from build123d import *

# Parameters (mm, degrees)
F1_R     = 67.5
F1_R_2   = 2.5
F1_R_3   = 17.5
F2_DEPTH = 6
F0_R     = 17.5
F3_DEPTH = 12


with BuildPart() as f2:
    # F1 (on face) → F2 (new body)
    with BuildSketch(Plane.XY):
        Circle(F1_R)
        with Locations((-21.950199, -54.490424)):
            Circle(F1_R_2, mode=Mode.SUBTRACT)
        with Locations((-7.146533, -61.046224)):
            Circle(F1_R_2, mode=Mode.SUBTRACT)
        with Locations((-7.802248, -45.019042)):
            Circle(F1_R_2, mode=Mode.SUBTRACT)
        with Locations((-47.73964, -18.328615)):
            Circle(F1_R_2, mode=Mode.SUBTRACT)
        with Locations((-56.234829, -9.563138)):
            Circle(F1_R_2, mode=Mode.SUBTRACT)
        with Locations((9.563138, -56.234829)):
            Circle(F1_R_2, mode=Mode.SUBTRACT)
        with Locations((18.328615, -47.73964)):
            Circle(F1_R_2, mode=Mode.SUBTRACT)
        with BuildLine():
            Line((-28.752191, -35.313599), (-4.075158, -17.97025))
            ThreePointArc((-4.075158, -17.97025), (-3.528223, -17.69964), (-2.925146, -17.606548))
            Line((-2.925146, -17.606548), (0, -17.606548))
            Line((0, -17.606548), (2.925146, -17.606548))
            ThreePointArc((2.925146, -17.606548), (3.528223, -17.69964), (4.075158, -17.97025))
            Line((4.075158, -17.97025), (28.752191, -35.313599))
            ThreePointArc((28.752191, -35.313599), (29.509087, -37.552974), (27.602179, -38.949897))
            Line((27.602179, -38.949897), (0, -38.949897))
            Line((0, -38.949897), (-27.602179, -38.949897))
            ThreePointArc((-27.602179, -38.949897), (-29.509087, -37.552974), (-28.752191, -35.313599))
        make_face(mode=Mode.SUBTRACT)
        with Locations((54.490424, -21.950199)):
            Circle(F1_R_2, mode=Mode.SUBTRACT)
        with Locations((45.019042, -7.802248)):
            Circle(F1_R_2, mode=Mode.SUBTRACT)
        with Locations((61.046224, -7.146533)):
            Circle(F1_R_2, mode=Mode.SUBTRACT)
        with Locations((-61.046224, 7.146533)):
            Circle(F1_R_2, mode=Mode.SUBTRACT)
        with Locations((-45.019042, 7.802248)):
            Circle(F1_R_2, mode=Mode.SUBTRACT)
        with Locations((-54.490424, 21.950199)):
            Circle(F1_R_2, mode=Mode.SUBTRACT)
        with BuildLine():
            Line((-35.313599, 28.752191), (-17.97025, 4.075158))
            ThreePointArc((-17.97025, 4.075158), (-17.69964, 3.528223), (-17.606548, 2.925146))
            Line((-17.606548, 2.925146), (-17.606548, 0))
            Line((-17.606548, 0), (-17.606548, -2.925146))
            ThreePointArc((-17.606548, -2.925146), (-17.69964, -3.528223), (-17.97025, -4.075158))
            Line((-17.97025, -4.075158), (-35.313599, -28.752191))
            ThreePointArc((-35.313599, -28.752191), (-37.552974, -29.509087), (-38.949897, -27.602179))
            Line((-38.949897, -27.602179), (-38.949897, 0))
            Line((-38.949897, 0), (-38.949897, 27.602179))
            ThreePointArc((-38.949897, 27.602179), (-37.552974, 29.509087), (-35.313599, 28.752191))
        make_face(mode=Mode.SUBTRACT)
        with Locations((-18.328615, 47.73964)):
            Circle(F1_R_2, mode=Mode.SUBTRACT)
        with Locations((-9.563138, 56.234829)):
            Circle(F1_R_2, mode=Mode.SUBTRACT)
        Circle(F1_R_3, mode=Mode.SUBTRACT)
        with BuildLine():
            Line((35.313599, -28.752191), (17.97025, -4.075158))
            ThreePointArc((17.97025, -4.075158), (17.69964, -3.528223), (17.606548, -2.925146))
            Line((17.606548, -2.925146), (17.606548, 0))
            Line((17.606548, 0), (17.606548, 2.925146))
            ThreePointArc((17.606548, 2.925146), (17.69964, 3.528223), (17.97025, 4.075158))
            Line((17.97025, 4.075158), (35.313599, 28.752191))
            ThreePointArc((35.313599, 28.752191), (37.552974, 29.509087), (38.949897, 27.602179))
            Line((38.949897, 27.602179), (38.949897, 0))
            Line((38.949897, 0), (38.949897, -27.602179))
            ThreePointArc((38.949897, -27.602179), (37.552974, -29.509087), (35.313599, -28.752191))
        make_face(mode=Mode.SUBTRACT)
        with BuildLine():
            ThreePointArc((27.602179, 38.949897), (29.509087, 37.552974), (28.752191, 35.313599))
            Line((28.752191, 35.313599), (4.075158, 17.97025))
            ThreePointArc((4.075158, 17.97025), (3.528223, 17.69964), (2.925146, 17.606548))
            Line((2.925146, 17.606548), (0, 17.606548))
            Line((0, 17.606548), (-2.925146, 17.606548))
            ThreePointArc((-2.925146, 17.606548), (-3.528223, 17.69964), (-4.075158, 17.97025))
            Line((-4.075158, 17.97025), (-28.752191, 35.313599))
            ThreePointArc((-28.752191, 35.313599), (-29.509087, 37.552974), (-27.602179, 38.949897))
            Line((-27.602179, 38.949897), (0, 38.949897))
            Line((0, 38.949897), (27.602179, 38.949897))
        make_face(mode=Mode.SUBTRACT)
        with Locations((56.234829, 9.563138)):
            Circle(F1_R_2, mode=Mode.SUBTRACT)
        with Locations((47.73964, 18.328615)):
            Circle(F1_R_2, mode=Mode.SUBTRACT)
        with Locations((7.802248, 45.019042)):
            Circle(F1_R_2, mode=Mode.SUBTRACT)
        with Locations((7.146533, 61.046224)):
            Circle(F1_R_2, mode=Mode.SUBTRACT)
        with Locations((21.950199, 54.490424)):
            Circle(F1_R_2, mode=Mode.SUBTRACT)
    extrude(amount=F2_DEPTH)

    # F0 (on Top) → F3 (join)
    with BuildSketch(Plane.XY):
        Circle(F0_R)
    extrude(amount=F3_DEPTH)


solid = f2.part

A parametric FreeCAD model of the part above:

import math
import FreeCAD as App
import Part
import Sketcher
Q = App.Units.Quantity

doc = App.newDocument("Part")
params = doc.addObject("Spreadsheet::Sheet", "Params")
for row, (alias, value) in enumerate([
    ("sketch1_diameter", "135 mm"),
    ("sketch1_diameter2", "5 mm"),
    ("sketch1_diameter3", "35 mm"),
    ("sketch1_radius", "2 mm"),
    ("pad1_length", "6 mm"),
    ("sketch2_diameter", "35 mm"),
    ("pad2_length", "12 mm"),
], start=1):
    params.set(f"A{row}", alias)
    params.set(f"B{row}", "=" + value)
    params.setAlias(f"B{row}", alias)

body = doc.addObject("PartDesign::Body", "Body")

sketch1 = doc.addObject("Sketcher::SketchObject", "Sketch")
body.addObject(sketch1)
sketch1.AttachmentSupport = (doc.XY_Plane, [""])
sketch1.MapMode = "FlatFace"
sketch1.addGeometry(Part.Circle(App.Vector(0, 0, 0), App.Vector(0, 0, 1), 67.5), False)
sketch1.addGeometry(Part.Circle(App.Vector(-22, -54.5, 0), App.Vector(0, 0, 1), 2.5), False)
sketch1.addGeometry(Part.Circle(App.Vector(-7.1, -61, 0), App.Vector(0, 0, 1), 2.5), False)
sketch1.addGeometry(Part.Circle(App.Vector(-7.8, -45, 0), App.Vector(0, 0, 1), 2.5), False)
sketch1.addGeometry(Part.Circle(App.Vector(-47.7, -18.3, 0), App.Vector(0, 0, 1), 2.5), False)
sketch1.addGeometry(Part.Circle(App.Vector(-56.2, -9.6, 0), App.Vector(0, 0, 1), 2.5), False)
sketch1.addGeometry(Part.ArcOfCircle(Part.Circle(App.Vector(-36.9, 27.6, 0), App.Vector(0, 0, 1), 2), math.radians(35), math.radians(180)), False)
sketch1.addGeometry(Part.LineSegment(App.Vector(-35.3, 28.8, 0), App.Vector(-18, 4.1, 0)), False)
sketch1.addGeometry(Part.ArcOfCircle(Part.Circle(App.Vector(-19.6, 2.9, 0), App.Vector(0, 0, 1), 2), math.radians(0), math.radians(35)), False)
sketch1.addGeometry(Part.LineSegment(App.Vector(-17.6, 2.9, 0), App.Vector(-17.6, -2.9, 0)), False)
sketch1.addGeometry(Part.ArcOfCircle(Part.Circle(App.Vector(-19.6, -2.9, 0), App.Vector(0, 0, 1), 2), math.radians(-35), math.radians(0)), False)
sketch1.addGeometry(Part.LineSegment(App.Vector(-18, -4.1, 0), App.Vector(-35.3, -28.8, 0)), False)
sketch1.addGeometry(Part.ArcOfCircle(Part.Circle(App.Vector(-36.9, -27.6, 0), App.Vector(0, 0, 1), 2), math.radians(180), math.radians(325)), False)
sketch1.addGeometry(Part.LineSegment(App.Vector(-38.9, -27.6, 0), App.Vector(-38.9, 27.6, 0)), False)
sketch1.addGeometry(Part.Circle(App.Vector(9.6, -56.2, 0), App.Vector(0, 0, 1), 2.5), False)
sketch1.addGeometry(Part.Circle(App.Vector(18.3, -47.7, 0), App.Vector(0, 0, 1), 2.5), False)
sketch1.addGeometry(Part.ArcOfCircle(Part.Circle(App.Vector(-27.6, -36.9, 0), App.Vector(0, 0, 1), 2), math.radians(125), math.radians(270)), False)
sketch1.addGeometry(Part.LineSegment(App.Vector(-28.8, -35.3, 0), App.Vector(-4.1, -18, 0)), False)
sketch1.addGeometry(Part.ArcOfCircle(Part.Circle(App.Vector(-2.9, -19.6, 0), App.Vector(0, 0, 1), 2), math.radians(90), math.radians(125)), False)
sketch1.addGeometry(Part.LineSegment(App.Vector(-2.9, -17.6, 0), App.Vector(2.9, -17.6, 0)), False)
sketch1.addGeometry(Part.ArcOfCircle(Part.Circle(App.Vector(2.9, -19.6, 0), App.Vector(0, 0, 1), 2), math.radians(55), math.radians(90)), False)
sketch1.addGeometry(Part.LineSegment(App.Vector(4.1, -18, 0), App.Vector(28.8, -35.3, 0)), False)
sketch1.addGeometry(Part.ArcOfCircle(Part.Circle(App.Vector(27.6, -36.9, 0), App.Vector(0, 0, 1), 2), math.radians(-90), math.radians(55)), False)
sketch1.addGeometry(Part.LineSegment(App.Vector(27.6, -38.9, 0), App.Vector(-27.6, -38.9, 0)), False)
sketch1.addGeometry(Part.Circle(App.Vector(0, 0, 0), App.Vector(0, 0, 1), 17.5), False)
sketch1.addGeometry(Part.Circle(App.Vector(54.5, -22, 0), App.Vector(0, 0, 1), 2.5), False)
sketch1.addGeometry(Part.Circle(App.Vector(45, -7.8, 0), App.Vector(0, 0, 1), 2.5), False)
sketch1.addGeometry(Part.Circle(App.Vector(61, -7.1, 0), App.Vector(0, 0, 1), 2.5), False)
sketch1.addGeometry(Part.Circle(App.Vector(-61, 7.1, 0), App.Vector(0, 0, 1), 2.5), False)
sketch1.addGeometry(Part.Circle(App.Vector(-45, 7.8, 0), App.Vector(0, 0, 1), 2.5), False)
sketch1.addGeometry(Part.Circle(App.Vector(-54.5, 22, 0), App.Vector(0, 0, 1), 2.5), False)
sketch1.addGeometry(Part.Circle(App.Vector(-18.3, 47.7, 0), App.Vector(0, 0, 1), 2.5), False)
sketch1.addGeometry(Part.Circle(App.Vector(-9.6, 56.2, 0), App.Vector(0, 0, 1), 2.5), False)
sketch1.addGeometry(Part.ArcOfCircle(Part.Circle(App.Vector(36.9, -27.6, 0), App.Vector(0, 0, 1), 2), math.radians(-145), math.radians(0)), False)
sketch1.addGeometry(Part.LineSegment(App.Vector(35.3, -28.8, 0), App.Vector(18, -4.1, 0)), False)
sketch1.addGeometry(Part.ArcOfCircle(Part.Circle(App.Vector(19.6, -2.9, 0), App.Vector(0, 0, 1), 2), math.radians(180), math.radians(215)), False)
sketch1.addGeometry(Part.LineSegment(App.Vector(17.6, -2.9, 0), App.Vector(17.6, 2.9, 0)), False)
sketch1.addGeometry(Part.ArcOfCircle(Part.Circle(App.Vector(19.6, 2.9, 0), App.Vector(0, 0, 1), 2), math.radians(145), math.radians(180)), False)
sketch1.addGeometry(Part.LineSegment(App.Vector(18, 4.1, 0), App.Vector(35.3, 28.8, 0)), False)
sketch1.addGeometry(Part.ArcOfCircle(Part.Circle(App.Vector(36.9, 27.6, 0), App.Vector(0, 0, 1), 2), math.radians(0), math.radians(145)), False)
sketch1.addGeometry(Part.LineSegment(App.Vector(38.9, 27.6, 0), App.Vector(38.9, -27.6, 0)), False)
sketch1.addGeometry(Part.LineSegment(App.Vector(-27.6, 38.9, 0), App.Vector(27.6, 38.9, 0)), False)
sketch1.addGeometry(Part.ArcOfCircle(Part.Circle(App.Vector(27.6, 36.9, 0), App.Vector(0, 0, 1), 2), math.radians(-55), math.radians(90)), False)
sketch1.addGeometry(Part.LineSegment(App.Vector(28.8, 35.3, 0), App.Vector(4.1, 18, 0)), False)
sketch1.addGeometry(Part.ArcOfCircle(Part.Circle(App.Vector(2.9, 19.6, 0), App.Vector(0, 0, 1), 2), math.radians(-90), math.radians(-55)), False)
sketch1.addGeometry(Part.LineSegment(App.Vector(2.9, 17.6, 0), App.Vector(-2.9, 17.6, 0)), False)
sketch1.addGeometry(Part.ArcOfCircle(Part.Circle(App.Vector(-2.9, 19.6, 0), App.Vector(0, 0, 1), 2), math.radians(-125), math.radians(-90)), False)
sketch1.addGeometry(Part.LineSegment(App.Vector(-4.1, 18, 0), App.Vector(-28.8, 35.3, 0)), False)
sketch1.addGeometry(Part.ArcOfCircle(Part.Circle(App.Vector(-27.6, 36.9, 0), App.Vector(0, 0, 1), 2), math.radians(90), math.radians(235)), False)
sketch1.addGeometry(Part.Circle(App.Vector(56.2, 9.6, 0), App.Vector(0, 0, 1), 2.5), False)
sketch1.addGeometry(Part.Circle(App.Vector(47.7, 18.3, 0), App.Vector(0, 0, 1), 2.5), False)
sketch1.addGeometry(Part.Circle(App.Vector(7.8, 45, 0), App.Vector(0, 0, 1), 2.5), False)
sketch1.addGeometry(Part.Circle(App.Vector(7.1, 61, 0), App.Vector(0, 0, 1), 2.5), False)
sketch1.addGeometry(Part.Circle(App.Vector(22, 54.5, 0), App.Vector(0, 0, 1), 2.5), False)
sketch1.addConstraint(Sketcher.Constraint("Tangent", 6, 1, 7, 1))
sketch1.addConstraint(Sketcher.Constraint("Tangent", 7, 2, 8, 2))
sketch1.addConstraint(Sketcher.Constraint("Tangent", 8, 1, 9, 1))
sketch1.addConstraint(Sketcher.Constraint("Tangent", 9, 2, 10, 2))
sketch1.addConstraint(Sketcher.Constraint("Tangent", 10, 1, 11, 1))
sketch1.addConstraint(Sketcher.Constraint("Tangent", 11, 2, 12, 2))
sketch1.addConstraint(Sketcher.Constraint("Tangent", 12, 1, 13, 1))
sketch1.addConstraint(Sketcher.Constraint("Tangent", 13, 2, 6, 2))
sketch1.addConstraint(Sketcher.Constraint("Tangent", 16, 1, 17, 1))
sketch1.addConstraint(Sketcher.Constraint("Tangent", 17, 2, 18, 2))
sketch1.addConstraint(Sketcher.Constraint("Tangent", 18, 1, 19, 1))
sketch1.addConstraint(Sketcher.Constraint("Tangent", 19, 2, 20, 2))
sketch1.addConstraint(Sketcher.Constraint("Tangent", 20, 1, 21, 1))
sketch1.addConstraint(Sketcher.Constraint("Tangent", 21, 2, 22, 2))
sketch1.addConstraint(Sketcher.Constraint("Tangent", 22, 1, 23, 1))
sketch1.addConstraint(Sketcher.Constraint("Tangent", 23, 2, 16, 2))
sketch1.addConstraint(Sketcher.Constraint("Tangent", 33, 1, 34, 1))
sketch1.addConstraint(Sketcher.Constraint("Tangent", 34, 2, 35, 2))
sketch1.addConstraint(Sketcher.Constraint("Tangent", 35, 1, 36, 1))
sketch1.addConstraint(Sketcher.Constraint("Tangent", 36, 2, 37, 2))
sketch1.addConstraint(Sketcher.Constraint("Tangent", 37, 1, 38, 1))
sketch1.addConstraint(Sketcher.Constraint("Tangent", 38, 2, 39, 2))
sketch1.addConstraint(Sketcher.Constraint("Tangent", 39, 1, 40, 1))
sketch1.addConstraint(Sketcher.Constraint("Tangent", 40, 2, 33, 2))
sketch1.addConstraint(Sketcher.Constraint("Tangent", 41, 2, 42, 2))
sketch1.addConstraint(Sketcher.Constraint("Tangent", 42, 1, 43, 1))
sketch1.addConstraint(Sketcher.Constraint("Tangent", 43, 2, 44, 2))
sketch1.addConstraint(Sketcher.Constraint("Tangent", 44, 1, 45, 1))
sketch1.addConstraint(Sketcher.Constraint("Tangent", 45, 2, 46, 2))
sketch1.addConstraint(Sketcher.Constraint("Tangent", 46, 1, 47, 1))
sketch1.addConstraint(Sketcher.Constraint("Tangent", 47, 2, 48, 2))
sketch1.addConstraint(Sketcher.Constraint("Tangent", 48, 1, 41, 1))
sketch1.addConstraint(Sketcher.Constraint("Vertical", 9))
sketch1.addConstraint(Sketcher.Constraint("Vertical", 13))
sketch1.addConstraint(Sketcher.Constraint("Horizontal", 19))
sketch1.addConstraint(Sketcher.Constraint("Horizontal", 23))
sketch1.addConstraint(Sketcher.Constraint("Vertical", 36))
sketch1.addConstraint(Sketcher.Constraint("Vertical", 40))
sketch1.addConstraint(Sketcher.Constraint("Horizontal", 41))
sketch1.addConstraint(Sketcher.Constraint("Horizontal", 45))
sketch1.addConstraint(Sketcher.Constraint("Coincident", 0, 3, -1, 1))
sketch1.addConstraint(Sketcher.Constraint("Coincident", 24, 3, -1, 1))
sketch1.addConstraint(Sketcher.Constraint("Equal", 1, 2))
sketch1.addConstraint(Sketcher.Constraint("Equal", 2, 3))
sketch1.addConstraint(Sketcher.Constraint("Equal", 3, 4))
sketch1.addConstraint(Sketcher.Constraint("Equal", 4, 5))
sketch1.addConstraint(Sketcher.Constraint("Equal", 8, 10))
sketch1.addConstraint(Sketcher.Constraint("Equal", 6, 12))
sketch1.addConstraint(Sketcher.Constraint("Equal", 5, 14))
sketch1.addConstraint(Sketcher.Constraint("Equal", 14, 15))
sketch1.addConstraint(Sketcher.Constraint("Equal", 12, 16))
sketch1.addConstraint(Sketcher.Constraint("Equal", 10, 18))
sketch1.addConstraint(Sketcher.Constraint("Equal", 18, 20))
sketch1.addConstraint(Sketcher.Constraint("Equal", 16, 22))
sketch1.addConstraint(Sketcher.Constraint("Equal", 15, 25))
sketch1.addConstraint(Sketcher.Constraint("Equal", 25, 26))
sketch1.addConstraint(Sketcher.Constraint("Equal", 26, 27))
sketch1.addConstraint(Sketcher.Constraint("Equal", 27, 28))
sketch1.addConstraint(Sketcher.Constraint("Equal", 28, 29))
sketch1.addConstraint(Sketcher.Constraint("Equal", 29, 30))
sketch1.addConstraint(Sketcher.Constraint("Equal", 30, 31))
sketch1.addConstraint(Sketcher.Constraint("Equal", 31, 32))
sketch1.addConstraint(Sketcher.Constraint("Equal", 22, 33))
sketch1.addConstraint(Sketcher.Constraint("Equal", 20, 35))
sketch1.addConstraint(Sketcher.Constraint("Equal", 35, 37))
sketch1.addConstraint(Sketcher.Constraint("Equal", 33, 39))
sketch1.addConstraint(Sketcher.Constraint("Equal", 39, 42))
sketch1.addConstraint(Sketcher.Constraint("Equal", 37, 44))
sketch1.addConstraint(Sketcher.Constraint("Equal", 44, 46))
sketch1.addConstraint(Sketcher.Constraint("Equal", 42, 48))
sketch1.addConstraint(Sketcher.Constraint("Equal", 32, 49))
sketch1.addConstraint(Sketcher.Constraint("Equal", 49, 50))
sketch1.addConstraint(Sketcher.Constraint("Equal", 50, 51))
sketch1.addConstraint(Sketcher.Constraint("Equal", 51, 52))
sketch1.addConstraint(Sketcher.Constraint("Equal", 52, 53))
sketch1.addConstraint(Sketcher.Constraint("Symmetric", 27, 3, 28, 3, -1, 1))
sketch1.addConstraint(Sketcher.Constraint("Symmetric", 26, 3, 29, 3, -1, 1))
sketch1.addConstraint(Sketcher.Constraint("Symmetric", 25, 3, 30, 3, -1, 1))
sketch1.addConstraint(Sketcher.Constraint("Symmetric", 15, 3, 31, 3, -1, 1))
sketch1.addConstraint(Sketcher.Constraint("Symmetric", 14, 3, 32, 3, -1, 1))
sketch1.addConstraint(Sketcher.Constraint("Symmetric", 6, 3, 33, 3, -1, 1))
sketch1.addConstraint(Sketcher.Constraint("Symmetric", 8, 3, 35, 3, -1, 1))
sketch1.addConstraint(Sketcher.Constraint("Symmetric", 16, 3, 42, 3, -1, 1))
sketch1.addConstraint(Sketcher.Constraint("Symmetric", 18, 3, 44, 3, -1, 1))
sketch1.addConstraint(Sketcher.Constraint("Symmetric", 5, 3, 49, 3, -1, 1))
sketch1.addConstraint(Sketcher.Constraint("Symmetric", 4, 3, 50, 3, -1, 1))
sketch1.addConstraint(Sketcher.Constraint("Symmetric", 3, 3, 51, 3, -1, 1))
sketch1.addConstraint(Sketcher.Constraint("Symmetric", 2, 3, 52, 3, -1, 1))
sketch1.addConstraint(Sketcher.Constraint("Symmetric", 1, 3, 53, 3, -1, 1))
sketch1.addConstraint(Sketcher.Constraint("Symmetric", 10, 1, 37, 1, -1, 1))
sketch1.addConstraint(Sketcher.Constraint("Symmetric", 20, 1, 46, 1, -1, 1))
sketch1.addConstraint(Sketcher.Constraint("Symmetric", 17, 2, 20, 1, -2))
sketch1.addConstraint(Sketcher.Constraint("Symmetric", 11, 2, 33, 1, -2))
sketch1.addConstraint(Sketcher.Constraint("Perpendicular", 7, 17))
sketch1.addConstraint(Sketcher.Constraint("Equal", 45, 9))
sketch1.addConstraint(Sketcher.Constraint("Equal", 41, 13))
sketch1.addConstraint(Sketcher.Constraint("Diameter", 0, Q("135 mm")))
sketch1.addConstraint(Sketcher.Constraint("Diameter", 1, Q("5 mm")))
sketch1.addConstraint(Sketcher.Constraint("Diameter", 24, Q("35 mm")))
sketch1.addConstraint(Sketcher.Constraint("Radius", 6, Q("2 mm")))
sketch1.addConstraint(Sketcher.Constraint("Radius", 8, Q("1.999997 mm")))
sketch1.addConstraint(Sketcher.Constraint("DistanceX", 19, 1, 19, 2, Q("5.850292 mm")))
sketch1.addConstraint(Sketcher.Constraint("DistanceX", 1, 3, -1, 1, Q("21.950199 mm")))
sketch1.addConstraint(Sketcher.Constraint("DistanceY", 25, 3, -1, 1, Q("21.950199 mm")))
sketch1.addConstraint(Sketcher.Constraint("DistanceX", 6, 1, -1, 1, Q("35.313599 mm")))
sketch1.addConstraint(Sketcher.Constraint("DistanceY", 16, 1, -1, 1, Q("35.313599 mm")))
sketch1.addConstraint(Sketcher.Constraint("DistanceX", 23, 2, 23, 1, Q("55.204358 mm")))
sketch1.addConstraint(Sketcher.Constraint("DistanceX", 4, 3, -1, 1, Q("47.73964 mm")))
sketch1.addConstraint(Sketcher.Constraint("DistanceX", 5, 3, -1, 1, Q("56.234829 mm")))
sketch1.addConstraint(Sketcher.Constraint("DistanceY", 14, 3, -1, 1, Q("56.234829 mm")))
sketch1.addConstraint(Sketcher.Constraint("DistanceY", 15, 3, -1, 1, Q("47.73964 mm")))
sketch1.addConstraint(Sketcher.Constraint("DistanceY", -1, 1, 6, 1, Q("28.752191 mm")))
sketch1.addConstraint(Sketcher.Constraint("DistanceY", 1, 3, -1, 1, Q("54.490424 mm")))
sketch1.addConstraint(Sketcher.Constraint("DistanceX", 2, 3, -1, 1, Q("7.146533 mm")))
sketch1.addConstraint(Sketcher.Constraint("DistanceY", 2, 3, -1, 1, Q("61.046224 mm")))
sketch1.addConstraint(Sketcher.Constraint("DistanceX", 3, 3, -1, 1, Q("7.802248 mm")))
sketch1.addConstraint(Sketcher.Constraint("DistanceY", 3, 3, -1, 1, Q("45.019042 mm")))
sketch1.addConstraint(Sketcher.Constraint("DistanceY", 4, 3, -1, 1, Q("18.328615 mm")))
sketch1.addConstraint(Sketcher.Constraint("DistanceY", 5, 3, -1, 1, Q("9.563138 mm")))
sketch1.addConstraint(Sketcher.Constraint("DistanceX", -1, 1, 14, 3, Q("9.563138 mm")))
sketch1.addConstraint(Sketcher.Constraint("DistanceX", -1, 1, 15, 3, Q("18.328615 mm")))
sketch1.addConstraint(Sketcher.Constraint("DistanceX", -1, 1, 25, 3, Q("54.490424 mm")))
sketch1.addConstraint(Sketcher.Constraint("DistanceX", -1, 1, 26, 3, Q("45.019042 mm")))
sketch1.addConstraint(Sketcher.Constraint("DistanceY", 26, 3, -1, 1, Q("7.802248 mm")))
sketch1.addConstraint(Sketcher.Constraint("DistanceX", -1, 1, 27, 3, Q("61.046224 mm")))
sketch1.addConstraint(Sketcher.Constraint("DistanceY", 27, 3, -1, 1, Q("7.146533 mm")))
sketch1.setExpression("Constraints[96]", "Params.sketch1_diameter")
sketch1.setExpression("Constraints[97]", "Params.sketch1_diameter2")
sketch1.setExpression("Constraints[98]", "Params.sketch1_diameter3")
sketch1.setExpression("Constraints[99]", "Params.sketch1_radius")
pad1 = doc.addObject("PartDesign::Pad", "Pad")
body.addObject(pad1)
pad1.Profile = sketch1
pad1.setExpression("Length", "Params.pad1_length")

sketch2 = doc.addObject("Sketcher::SketchObject", "Sketch001")
body.addObject(sketch2)
sketch2.AttachmentSupport = (doc.XY_Plane, [""])
sketch2.MapMode = "FlatFace"
sketch2.addGeometry(Part.Circle(App.Vector(0, 0, 0), App.Vector(0, 0, 1), 18), False)
sketch2.addConstraint(Sketcher.Constraint("Coincident", 0, 3, -1, 1))
sketch2.addConstraint(Sketcher.Constraint("Diameter", 0, Q("35 mm")))
sketch2.setExpression("Constraints[1]", "Params.sketch2_diameter")
pad2 = doc.addObject("PartDesign::Pad", "Pad001")
body.addObject(pad2)
pad2.Profile = sketch2
pad2.setExpression("Length", "Params.pad2_length")

doc.recompute()
